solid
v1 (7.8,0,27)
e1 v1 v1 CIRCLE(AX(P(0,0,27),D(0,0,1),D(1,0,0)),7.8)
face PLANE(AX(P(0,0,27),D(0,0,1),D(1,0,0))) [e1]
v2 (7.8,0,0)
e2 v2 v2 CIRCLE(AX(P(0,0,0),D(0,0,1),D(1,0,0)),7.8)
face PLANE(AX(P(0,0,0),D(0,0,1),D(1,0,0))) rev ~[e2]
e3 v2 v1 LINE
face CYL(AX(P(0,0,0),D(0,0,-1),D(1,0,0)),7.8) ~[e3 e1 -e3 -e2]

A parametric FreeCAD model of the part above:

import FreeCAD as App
import Part
import Sketcher
from FreeCAD import Vector

doc = App.newDocument("Part")
body = doc.addObject("PartDesign::Body", "Body")

sketch1 = body.newObject("Sketcher::SketchObject", "Sketch")
sketch1.AttachmentSupport = (doc.getObject("XY_Plane"), [""])
sketch1.MapMode = "FlatFace"
sketch1.addGeometry(Part.Circle(Vector(0, 0, 0), Vector(0, 0, 1), 7.8), False)
sketch1.addConstraint([
    Sketcher.Constraint("Coincident", 0, 3, -1, 1),
    Sketcher.Constraint("Diameter", 0, 15.6),
])
pad1 = body.newObject("PartDesign::Pad", "Pad")
pad1.Profile = sketch1
pad1.Length = 27

doc.recompute()
